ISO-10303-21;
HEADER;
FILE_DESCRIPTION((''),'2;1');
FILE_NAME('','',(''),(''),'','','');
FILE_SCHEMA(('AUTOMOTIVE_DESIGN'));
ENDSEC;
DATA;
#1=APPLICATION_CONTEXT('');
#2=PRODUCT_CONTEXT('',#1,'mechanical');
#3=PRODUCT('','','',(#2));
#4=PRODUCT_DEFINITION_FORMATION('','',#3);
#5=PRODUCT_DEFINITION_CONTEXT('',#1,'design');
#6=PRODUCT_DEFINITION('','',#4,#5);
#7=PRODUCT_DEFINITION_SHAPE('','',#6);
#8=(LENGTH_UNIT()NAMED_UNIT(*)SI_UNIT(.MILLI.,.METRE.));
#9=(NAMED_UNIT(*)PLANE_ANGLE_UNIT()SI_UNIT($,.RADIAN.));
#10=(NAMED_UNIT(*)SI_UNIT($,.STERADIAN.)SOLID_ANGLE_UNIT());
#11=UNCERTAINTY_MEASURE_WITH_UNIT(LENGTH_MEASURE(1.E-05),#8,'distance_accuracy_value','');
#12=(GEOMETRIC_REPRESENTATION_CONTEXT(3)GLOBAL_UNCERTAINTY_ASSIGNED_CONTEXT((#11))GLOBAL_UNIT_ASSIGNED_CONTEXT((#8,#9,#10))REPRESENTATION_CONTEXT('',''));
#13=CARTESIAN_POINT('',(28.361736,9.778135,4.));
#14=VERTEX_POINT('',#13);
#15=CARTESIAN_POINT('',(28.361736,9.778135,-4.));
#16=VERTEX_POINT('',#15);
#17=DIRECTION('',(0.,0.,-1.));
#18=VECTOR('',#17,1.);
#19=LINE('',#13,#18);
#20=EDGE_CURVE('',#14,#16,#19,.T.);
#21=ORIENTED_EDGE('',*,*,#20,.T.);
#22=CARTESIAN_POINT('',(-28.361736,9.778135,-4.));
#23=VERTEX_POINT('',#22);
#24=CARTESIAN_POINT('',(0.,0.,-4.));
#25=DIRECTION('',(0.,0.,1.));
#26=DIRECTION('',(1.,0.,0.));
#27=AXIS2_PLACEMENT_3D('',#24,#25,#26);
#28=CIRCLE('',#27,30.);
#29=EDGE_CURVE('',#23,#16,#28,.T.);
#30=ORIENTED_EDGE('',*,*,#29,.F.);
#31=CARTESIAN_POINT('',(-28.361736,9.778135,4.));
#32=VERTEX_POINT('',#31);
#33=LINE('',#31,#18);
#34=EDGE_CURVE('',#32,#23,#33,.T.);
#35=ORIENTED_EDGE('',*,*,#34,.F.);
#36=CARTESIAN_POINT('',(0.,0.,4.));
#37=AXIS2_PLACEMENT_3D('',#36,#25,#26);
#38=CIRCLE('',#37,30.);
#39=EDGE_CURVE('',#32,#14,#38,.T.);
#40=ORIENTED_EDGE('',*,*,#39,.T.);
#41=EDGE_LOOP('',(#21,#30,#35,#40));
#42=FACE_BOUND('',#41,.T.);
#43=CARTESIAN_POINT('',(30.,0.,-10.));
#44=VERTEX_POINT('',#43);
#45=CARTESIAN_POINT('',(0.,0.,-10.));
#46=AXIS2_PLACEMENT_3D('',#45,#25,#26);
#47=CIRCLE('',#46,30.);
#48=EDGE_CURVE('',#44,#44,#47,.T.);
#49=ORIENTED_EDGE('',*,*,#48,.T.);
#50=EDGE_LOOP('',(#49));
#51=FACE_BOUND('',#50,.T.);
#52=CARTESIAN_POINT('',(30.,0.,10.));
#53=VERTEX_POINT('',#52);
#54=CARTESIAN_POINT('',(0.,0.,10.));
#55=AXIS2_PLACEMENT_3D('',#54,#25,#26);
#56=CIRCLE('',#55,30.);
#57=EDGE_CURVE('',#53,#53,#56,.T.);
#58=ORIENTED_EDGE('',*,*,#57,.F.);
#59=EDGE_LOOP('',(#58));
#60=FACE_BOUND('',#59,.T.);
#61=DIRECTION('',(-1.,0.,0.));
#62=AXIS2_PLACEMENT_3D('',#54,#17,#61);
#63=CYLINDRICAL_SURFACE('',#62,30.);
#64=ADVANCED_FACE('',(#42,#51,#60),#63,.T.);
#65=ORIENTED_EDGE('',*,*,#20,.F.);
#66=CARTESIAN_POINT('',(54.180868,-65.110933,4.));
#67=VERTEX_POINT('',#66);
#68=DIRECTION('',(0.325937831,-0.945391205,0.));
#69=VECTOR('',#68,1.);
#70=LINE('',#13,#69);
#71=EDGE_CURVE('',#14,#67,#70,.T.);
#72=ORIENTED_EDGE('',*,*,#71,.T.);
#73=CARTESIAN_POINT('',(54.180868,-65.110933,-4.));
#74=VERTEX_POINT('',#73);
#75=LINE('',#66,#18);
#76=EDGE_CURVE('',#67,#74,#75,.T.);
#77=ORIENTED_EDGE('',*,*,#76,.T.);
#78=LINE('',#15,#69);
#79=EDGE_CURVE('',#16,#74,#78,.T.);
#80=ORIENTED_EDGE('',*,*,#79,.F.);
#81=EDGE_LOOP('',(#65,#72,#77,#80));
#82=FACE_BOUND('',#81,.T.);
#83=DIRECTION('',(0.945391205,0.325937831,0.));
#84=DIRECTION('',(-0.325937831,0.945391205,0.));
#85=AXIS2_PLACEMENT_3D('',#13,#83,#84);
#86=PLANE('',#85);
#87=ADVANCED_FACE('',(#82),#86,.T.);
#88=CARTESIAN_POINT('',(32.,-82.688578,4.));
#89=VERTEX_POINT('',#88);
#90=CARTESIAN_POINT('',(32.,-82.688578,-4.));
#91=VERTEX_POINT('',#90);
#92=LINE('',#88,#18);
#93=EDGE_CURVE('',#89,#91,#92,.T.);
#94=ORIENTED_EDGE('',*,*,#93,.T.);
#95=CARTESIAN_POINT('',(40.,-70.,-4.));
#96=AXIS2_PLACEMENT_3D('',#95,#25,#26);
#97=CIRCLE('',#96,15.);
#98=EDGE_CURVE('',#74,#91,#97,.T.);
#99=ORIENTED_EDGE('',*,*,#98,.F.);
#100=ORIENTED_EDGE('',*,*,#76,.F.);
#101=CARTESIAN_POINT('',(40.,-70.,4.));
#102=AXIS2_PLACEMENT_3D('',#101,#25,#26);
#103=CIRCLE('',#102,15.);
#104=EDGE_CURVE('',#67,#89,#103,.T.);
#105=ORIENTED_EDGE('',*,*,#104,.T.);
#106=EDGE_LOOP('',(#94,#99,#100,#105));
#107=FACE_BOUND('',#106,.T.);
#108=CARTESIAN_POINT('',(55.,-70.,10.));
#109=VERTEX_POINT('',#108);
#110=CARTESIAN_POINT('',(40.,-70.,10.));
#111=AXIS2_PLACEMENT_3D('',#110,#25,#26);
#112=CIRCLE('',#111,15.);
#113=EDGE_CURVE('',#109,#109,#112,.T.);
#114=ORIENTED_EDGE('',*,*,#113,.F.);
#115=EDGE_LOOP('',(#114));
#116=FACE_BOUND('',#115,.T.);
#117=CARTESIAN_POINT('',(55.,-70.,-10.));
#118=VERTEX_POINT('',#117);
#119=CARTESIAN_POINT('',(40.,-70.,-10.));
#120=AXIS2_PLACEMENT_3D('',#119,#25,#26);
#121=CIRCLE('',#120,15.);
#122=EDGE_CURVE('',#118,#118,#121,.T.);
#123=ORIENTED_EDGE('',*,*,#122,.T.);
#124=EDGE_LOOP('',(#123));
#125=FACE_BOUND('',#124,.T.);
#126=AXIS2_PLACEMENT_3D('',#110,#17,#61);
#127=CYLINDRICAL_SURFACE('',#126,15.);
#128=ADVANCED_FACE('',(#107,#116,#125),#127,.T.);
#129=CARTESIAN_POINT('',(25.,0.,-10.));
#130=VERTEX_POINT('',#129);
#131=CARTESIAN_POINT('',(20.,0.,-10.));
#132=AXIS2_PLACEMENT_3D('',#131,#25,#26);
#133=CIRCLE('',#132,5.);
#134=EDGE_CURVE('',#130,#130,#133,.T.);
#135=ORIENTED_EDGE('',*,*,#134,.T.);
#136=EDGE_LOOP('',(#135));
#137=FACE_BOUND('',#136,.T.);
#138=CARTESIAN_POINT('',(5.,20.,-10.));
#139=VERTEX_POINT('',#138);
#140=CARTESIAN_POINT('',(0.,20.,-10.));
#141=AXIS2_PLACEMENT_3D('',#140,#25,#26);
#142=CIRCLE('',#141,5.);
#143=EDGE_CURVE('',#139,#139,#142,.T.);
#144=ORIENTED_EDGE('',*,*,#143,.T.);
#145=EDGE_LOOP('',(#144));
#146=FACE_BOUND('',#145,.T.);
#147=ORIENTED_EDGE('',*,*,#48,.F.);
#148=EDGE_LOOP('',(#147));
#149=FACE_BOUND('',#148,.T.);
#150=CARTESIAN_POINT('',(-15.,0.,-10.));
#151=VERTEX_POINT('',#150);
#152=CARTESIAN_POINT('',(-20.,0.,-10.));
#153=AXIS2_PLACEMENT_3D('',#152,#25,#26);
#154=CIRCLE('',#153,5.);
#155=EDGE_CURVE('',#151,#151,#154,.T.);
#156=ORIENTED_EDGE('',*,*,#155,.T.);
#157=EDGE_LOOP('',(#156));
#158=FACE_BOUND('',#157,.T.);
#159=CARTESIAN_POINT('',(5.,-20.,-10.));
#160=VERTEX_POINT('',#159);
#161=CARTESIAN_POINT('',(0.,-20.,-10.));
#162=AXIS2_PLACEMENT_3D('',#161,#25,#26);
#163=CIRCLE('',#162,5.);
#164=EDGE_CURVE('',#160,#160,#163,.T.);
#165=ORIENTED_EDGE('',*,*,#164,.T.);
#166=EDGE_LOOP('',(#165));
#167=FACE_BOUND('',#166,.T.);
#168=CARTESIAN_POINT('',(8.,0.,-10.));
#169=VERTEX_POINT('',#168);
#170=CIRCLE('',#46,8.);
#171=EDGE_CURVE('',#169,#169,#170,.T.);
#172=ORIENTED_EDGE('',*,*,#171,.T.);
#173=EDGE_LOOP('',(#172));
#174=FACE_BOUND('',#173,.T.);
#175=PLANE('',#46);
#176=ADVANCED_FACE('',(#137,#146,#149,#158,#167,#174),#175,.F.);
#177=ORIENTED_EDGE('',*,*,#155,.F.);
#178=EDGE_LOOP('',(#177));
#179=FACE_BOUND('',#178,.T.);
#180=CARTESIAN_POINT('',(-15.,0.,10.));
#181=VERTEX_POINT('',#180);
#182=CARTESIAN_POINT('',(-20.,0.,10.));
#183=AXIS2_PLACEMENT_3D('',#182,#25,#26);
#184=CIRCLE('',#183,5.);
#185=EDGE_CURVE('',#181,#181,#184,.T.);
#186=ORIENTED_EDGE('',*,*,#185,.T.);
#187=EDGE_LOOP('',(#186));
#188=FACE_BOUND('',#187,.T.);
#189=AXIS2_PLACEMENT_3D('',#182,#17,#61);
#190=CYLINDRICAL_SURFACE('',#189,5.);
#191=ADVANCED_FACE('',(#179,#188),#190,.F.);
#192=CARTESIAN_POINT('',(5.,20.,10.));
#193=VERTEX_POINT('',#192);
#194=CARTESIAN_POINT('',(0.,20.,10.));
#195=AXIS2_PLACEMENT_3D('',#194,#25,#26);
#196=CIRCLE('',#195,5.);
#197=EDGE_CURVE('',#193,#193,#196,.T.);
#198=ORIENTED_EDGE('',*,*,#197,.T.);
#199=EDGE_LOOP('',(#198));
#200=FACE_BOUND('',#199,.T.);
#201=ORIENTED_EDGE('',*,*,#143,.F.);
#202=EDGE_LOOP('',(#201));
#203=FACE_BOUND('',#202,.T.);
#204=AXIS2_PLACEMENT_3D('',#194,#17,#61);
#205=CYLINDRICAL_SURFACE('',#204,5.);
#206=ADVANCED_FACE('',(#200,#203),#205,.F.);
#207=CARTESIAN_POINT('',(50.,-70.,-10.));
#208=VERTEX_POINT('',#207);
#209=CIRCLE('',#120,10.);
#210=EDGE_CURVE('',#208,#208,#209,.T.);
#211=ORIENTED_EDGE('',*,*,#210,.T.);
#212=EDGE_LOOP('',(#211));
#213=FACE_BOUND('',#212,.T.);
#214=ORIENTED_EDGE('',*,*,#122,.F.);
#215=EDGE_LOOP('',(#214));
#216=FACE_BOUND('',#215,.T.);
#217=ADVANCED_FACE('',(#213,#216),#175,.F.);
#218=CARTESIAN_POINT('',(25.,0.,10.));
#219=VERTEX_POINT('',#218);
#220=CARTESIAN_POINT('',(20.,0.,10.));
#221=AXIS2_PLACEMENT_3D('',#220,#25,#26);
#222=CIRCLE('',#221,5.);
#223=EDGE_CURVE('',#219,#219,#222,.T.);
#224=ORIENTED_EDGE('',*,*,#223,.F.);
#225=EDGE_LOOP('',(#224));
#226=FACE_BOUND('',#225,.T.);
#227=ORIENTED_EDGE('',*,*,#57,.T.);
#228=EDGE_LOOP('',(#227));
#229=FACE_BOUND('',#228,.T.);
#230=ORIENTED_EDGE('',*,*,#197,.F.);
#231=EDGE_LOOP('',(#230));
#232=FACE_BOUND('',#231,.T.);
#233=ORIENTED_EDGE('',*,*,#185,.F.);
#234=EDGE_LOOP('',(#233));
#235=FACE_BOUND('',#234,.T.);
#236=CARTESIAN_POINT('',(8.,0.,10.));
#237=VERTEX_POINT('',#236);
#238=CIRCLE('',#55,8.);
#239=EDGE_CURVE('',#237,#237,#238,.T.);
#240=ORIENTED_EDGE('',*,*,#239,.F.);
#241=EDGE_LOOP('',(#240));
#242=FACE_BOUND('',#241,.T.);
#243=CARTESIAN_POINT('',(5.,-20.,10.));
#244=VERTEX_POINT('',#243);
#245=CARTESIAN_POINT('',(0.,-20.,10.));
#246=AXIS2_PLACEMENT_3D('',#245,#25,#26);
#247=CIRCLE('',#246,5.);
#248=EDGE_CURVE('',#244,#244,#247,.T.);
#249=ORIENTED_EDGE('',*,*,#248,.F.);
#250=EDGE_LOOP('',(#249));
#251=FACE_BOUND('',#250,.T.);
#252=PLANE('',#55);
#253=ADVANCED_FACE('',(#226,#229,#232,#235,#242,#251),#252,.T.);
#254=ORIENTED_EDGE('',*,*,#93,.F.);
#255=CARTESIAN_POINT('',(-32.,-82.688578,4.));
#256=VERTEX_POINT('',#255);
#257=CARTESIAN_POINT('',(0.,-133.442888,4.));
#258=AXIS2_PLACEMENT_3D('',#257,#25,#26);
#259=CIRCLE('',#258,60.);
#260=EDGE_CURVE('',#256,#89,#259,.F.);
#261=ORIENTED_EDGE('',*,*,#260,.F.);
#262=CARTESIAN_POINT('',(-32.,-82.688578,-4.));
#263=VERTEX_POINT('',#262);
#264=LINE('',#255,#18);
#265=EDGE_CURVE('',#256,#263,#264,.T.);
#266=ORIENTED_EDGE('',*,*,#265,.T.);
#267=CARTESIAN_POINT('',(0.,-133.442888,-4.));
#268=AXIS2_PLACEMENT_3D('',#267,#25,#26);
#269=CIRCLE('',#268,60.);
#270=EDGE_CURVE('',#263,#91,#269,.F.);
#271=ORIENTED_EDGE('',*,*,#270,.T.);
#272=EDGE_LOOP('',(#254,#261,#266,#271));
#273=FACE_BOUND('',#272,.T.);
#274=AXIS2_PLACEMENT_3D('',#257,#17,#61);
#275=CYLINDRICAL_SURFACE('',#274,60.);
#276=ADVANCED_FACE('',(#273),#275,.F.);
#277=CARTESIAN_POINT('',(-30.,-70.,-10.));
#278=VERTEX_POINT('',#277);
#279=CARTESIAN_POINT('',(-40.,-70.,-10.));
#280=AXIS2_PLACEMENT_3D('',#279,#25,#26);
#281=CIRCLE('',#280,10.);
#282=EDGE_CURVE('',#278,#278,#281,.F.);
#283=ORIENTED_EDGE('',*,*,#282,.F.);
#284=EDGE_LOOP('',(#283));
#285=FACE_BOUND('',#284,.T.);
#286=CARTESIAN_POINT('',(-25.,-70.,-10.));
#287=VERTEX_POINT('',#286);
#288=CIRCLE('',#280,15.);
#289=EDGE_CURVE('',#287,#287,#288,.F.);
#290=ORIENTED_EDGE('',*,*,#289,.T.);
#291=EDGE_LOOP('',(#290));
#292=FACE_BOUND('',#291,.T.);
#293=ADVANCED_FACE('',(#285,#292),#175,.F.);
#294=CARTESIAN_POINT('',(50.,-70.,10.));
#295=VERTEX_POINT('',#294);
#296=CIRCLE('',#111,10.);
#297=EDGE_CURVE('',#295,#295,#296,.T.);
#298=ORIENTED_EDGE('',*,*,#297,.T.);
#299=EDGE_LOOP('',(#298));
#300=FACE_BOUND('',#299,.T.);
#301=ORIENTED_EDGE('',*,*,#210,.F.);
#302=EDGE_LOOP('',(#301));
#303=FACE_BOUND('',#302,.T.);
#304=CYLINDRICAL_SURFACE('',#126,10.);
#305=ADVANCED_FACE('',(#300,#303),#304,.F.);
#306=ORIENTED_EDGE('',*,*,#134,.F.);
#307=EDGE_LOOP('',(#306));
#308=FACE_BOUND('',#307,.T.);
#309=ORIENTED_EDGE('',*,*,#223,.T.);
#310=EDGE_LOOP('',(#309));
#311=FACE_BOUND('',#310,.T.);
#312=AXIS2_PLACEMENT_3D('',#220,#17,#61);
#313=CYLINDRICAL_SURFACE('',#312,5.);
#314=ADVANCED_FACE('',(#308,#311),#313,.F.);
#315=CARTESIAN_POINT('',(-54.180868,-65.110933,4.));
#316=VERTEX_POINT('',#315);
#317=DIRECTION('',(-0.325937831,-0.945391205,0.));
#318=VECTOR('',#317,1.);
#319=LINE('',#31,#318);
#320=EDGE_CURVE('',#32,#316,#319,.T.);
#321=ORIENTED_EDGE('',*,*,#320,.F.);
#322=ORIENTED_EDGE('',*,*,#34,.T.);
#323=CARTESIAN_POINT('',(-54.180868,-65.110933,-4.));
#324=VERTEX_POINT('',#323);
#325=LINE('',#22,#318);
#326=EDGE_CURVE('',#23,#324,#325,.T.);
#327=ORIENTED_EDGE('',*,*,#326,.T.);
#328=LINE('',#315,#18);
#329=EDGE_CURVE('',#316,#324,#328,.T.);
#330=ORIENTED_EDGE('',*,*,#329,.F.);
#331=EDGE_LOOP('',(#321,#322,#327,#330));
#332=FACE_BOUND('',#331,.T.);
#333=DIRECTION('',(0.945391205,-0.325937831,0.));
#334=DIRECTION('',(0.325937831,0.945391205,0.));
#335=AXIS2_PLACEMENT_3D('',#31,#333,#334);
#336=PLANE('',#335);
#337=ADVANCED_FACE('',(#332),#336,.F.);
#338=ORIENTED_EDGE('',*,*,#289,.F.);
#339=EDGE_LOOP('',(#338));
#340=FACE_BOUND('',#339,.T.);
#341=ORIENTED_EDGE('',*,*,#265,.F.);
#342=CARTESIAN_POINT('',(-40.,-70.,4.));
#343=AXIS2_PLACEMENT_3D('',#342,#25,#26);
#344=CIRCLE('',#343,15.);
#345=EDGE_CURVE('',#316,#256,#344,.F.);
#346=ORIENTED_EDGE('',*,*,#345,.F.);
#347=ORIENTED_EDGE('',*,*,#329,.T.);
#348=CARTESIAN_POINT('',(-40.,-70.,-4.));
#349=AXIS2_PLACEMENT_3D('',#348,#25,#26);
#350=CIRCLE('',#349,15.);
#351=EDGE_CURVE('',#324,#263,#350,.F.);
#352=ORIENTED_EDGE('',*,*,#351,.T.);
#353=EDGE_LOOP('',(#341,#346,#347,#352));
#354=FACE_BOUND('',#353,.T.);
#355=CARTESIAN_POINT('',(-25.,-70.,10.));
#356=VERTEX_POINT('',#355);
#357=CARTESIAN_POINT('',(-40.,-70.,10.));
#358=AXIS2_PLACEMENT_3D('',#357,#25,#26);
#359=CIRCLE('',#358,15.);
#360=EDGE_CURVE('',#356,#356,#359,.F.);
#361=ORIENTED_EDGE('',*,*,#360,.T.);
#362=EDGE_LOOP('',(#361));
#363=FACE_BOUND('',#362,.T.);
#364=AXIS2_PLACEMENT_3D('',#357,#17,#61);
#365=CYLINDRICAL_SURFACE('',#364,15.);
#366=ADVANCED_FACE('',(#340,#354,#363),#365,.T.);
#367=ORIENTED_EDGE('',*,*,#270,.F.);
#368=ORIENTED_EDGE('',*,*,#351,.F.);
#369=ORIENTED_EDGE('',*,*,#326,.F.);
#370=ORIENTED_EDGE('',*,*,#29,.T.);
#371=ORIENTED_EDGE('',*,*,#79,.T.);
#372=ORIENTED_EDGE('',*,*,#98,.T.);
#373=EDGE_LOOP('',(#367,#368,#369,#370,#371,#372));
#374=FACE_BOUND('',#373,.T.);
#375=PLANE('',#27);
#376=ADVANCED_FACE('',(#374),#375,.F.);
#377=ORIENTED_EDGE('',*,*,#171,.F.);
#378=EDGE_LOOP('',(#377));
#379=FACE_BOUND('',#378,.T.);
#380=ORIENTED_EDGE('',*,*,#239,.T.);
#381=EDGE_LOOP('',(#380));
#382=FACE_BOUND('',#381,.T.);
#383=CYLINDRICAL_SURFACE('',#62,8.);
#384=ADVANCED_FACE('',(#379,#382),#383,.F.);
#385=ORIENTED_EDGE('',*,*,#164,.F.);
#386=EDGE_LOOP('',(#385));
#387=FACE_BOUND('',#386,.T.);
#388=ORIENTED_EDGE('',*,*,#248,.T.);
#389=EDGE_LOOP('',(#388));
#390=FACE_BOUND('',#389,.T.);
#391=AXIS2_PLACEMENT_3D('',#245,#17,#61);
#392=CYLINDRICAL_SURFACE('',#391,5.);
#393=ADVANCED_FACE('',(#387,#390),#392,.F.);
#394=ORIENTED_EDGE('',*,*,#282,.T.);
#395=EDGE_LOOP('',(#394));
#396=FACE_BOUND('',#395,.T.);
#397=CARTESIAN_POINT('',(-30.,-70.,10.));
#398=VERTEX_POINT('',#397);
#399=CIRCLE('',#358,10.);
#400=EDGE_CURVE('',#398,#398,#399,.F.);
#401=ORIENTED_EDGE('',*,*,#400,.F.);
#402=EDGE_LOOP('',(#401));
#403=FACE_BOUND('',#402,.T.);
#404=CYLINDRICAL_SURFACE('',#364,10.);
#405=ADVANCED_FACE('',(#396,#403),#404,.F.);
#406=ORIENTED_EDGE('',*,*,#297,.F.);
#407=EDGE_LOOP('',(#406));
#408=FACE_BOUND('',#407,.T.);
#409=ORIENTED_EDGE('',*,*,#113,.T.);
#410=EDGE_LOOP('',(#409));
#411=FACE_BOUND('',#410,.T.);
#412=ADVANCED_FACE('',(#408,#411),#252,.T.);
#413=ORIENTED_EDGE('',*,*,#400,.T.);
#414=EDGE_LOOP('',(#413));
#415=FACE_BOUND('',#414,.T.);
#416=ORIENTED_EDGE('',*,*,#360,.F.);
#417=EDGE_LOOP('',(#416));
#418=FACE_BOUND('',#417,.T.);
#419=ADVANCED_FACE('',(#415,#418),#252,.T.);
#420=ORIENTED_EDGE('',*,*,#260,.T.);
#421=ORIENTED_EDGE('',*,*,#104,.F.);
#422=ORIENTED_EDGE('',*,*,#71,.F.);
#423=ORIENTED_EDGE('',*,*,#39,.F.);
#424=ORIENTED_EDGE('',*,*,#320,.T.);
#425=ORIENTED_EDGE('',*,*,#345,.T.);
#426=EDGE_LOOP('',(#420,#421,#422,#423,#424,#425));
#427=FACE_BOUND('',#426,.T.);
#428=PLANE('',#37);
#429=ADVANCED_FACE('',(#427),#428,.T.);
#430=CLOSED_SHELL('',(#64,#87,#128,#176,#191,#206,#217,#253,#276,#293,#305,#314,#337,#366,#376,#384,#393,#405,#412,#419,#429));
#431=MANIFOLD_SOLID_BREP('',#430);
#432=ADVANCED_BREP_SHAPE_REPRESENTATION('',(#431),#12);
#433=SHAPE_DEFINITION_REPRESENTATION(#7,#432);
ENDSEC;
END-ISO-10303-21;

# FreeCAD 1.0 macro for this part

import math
import FreeCAD as App
import Part
import Sketcher

doc = App.newDocument("Part")
params = doc.addObject("Spreadsheet::Sheet", "Params")
for row, (alias, value) in enumerate([
    ("sketch1_diameter", "60 mm"),
    ("sketch1_diameter2", "10 mm"),
    ("sketch1_diameter3", "16 mm"),
    ("pad1_length", "20 mm"),
    ("sketch2_diameter", "30 mm"),
    ("sketch2_diameter2", "20 mm"),
    ("pad2_length", "20 mm"),
    ("sketch3_diameter", "30 mm"),
    ("sketch3_diameter2", "20 mm"),
    ("pad3_length", "20 mm"),
    ("sketch4_radius", "30 mm"),
    ("sketch4_radius2", "15 mm"),
    ("sketch4_radius3", "60 mm"),
    ("pad4_length", "8 mm"),
], start=1):
    params.set(f"A{row}", alias)
    params.set(f"B{row}", "=" + value)
    params.setAlias(f"B{row}", alias)

body = doc.addObject("PartDesign::Body", "Body")

sketch1 = body.newObject("Sketcher::SketchObject", "Sketch")
sketch1.AttachmentSupport = (doc.getObject("XY_Plane"), [""])
sketch1.MapMode = "FlatFace"
sketch1.addGeometry([
    Part.Circle(App.Vector(0, 0, 0), App.Vector(0, 0, 1), 30),
    Part.Circle(App.Vector(0, -20, 0), App.Vector(0, 0, 1), 5),
    Part.Circle(App.Vector(-20, 0, 0), App.Vector(0, 0, 1), 5),
    Part.Circle(App.Vector(0, 0, 0), App.Vector(0, 0, 1), 8),
    Part.Circle(App.Vector(20, 0, 0), App.Vector(0, 0, 1), 5),
    Part.Circle(App.Vector(0, 20, 0), App.Vector(0, 0, 1), 5),
], False)
sketch1.addConstraint([
    Sketcher.Constraint("Coincident", 0, 3, -1, 1),
    Sketcher.Constraint("Coincident", 3, 3, -1, 1),
    Sketcher.Constraint("Equal", 1, 2),
    Sketcher.Constraint("Equal", 2, 4),
    Sketcher.Constraint("Equal", 4, 5),
    Sketcher.Constraint("Symmetric", 2, 3, 4, 3, -1, 1),
    Sketcher.Constraint("Symmetric", 1, 3, 5, 3, -1, 1),
    Sketcher.Constraint("PointOnObject", 1, 3, -2),
    Sketcher.Constraint("PointOnObject", 2, 3, -1),
    Sketcher.Constraint("Diameter", 0, 60.0),
    Sketcher.Constraint("Diameter", 1, 10.0),
    Sketcher.Constraint("Diameter", 3, 16.0),
    Sketcher.Constraint("DistanceY", 1, 3, -1, 1, 20.0),
    Sketcher.Constraint("DistanceX", 2, 3, -1, 1, 20.0),
])
sketch1.setExpression("Constraints[9]", "Params.sketch1_diameter")
sketch1.setExpression("Constraints[10]", "Params.sketch1_diameter2")
sketch1.setExpression("Constraints[11]", "Params.sketch1_diameter3")
pad1 = body.newObject("PartDesign::Pad", "Pad")
pad1.Profile = sketch1
pad1.setExpression("Length", "Params.pad1_length")
pad1.Midplane = True
body2 = doc.addObject("PartDesign::Body", "Body001")

sketch2 = body2.newObject("Sketcher::SketchObject", "Sketch001")
sketch2.AttachmentSupport = (doc.getObject("XY_Plane001"), [""])
sketch2.MapMode = "FlatFace"
sketch2.addGeometry([
    Part.Circle(App.Vector(40, -70, 0), App.Vector(0, 0, 1), 15),
    Part.Circle(App.Vector(40, -70, 0), App.Vector(0, 0, 1), 10),
], False)
sketch2.addConstraint([
    Sketcher.Constraint("Coincident", 1, 3, 0, 3),
    Sketcher.Constraint("Diameter", 0, 30.0),
    Sketcher.Constraint("Diameter", 1, 20.0),
    Sketcher.Constraint("DistanceX", -1, 1, 0, 3, 40.0),
    Sketcher.Constraint("DistanceY", 0, 3, -1, 1, 70.0),
])
sketch2.setExpression("Constraints[1]", "Params.sketch2_diameter")
sketch2.setExpression("Constraints[2]", "Params.sketch2_diameter2")
pad2 = body2.newObject("PartDesign::Pad", "Pad001")
pad2.Profile = sketch2
pad2.setExpression("Length", "Params.pad2_length")
pad2.Midplane = True
body3 = doc.addObject("PartDesign::Body", "Body002")

sketch3 = body3.newObject("Sketcher::SketchObject", "Sketch002")
sketch3.AttachmentSupport = (doc.getObject("XY_Plane002"), [""])
sketch3.MapMode = "FlatFace"
sketch3.addGeometry([
    Part.Circle(App.Vector(-40, -70, 0), App.Vector(0, 0, 1), 15),
    Part.Circle(App.Vector(-40, -70, 0), App.Vector(0, 0, 1), 10),
], False)
sketch3.addConstraint([
    Sketcher.Constraint("Coincident", 1, 3, 0, 3),
    Sketcher.Constraint("Diameter", 0, 30.0),
    Sketcher.Constraint("Diameter", 1, 20.0),
    Sketcher.Constraint("DistanceX", 0, 3, -1, 1, 40.0),
    Sketcher.Constraint("DistanceY", 0, 3, -1, 1, 70.0),
])
sketch3.setExpression("Constraints[1]", "Params.sketch3_diameter")
sketch3.setExpression("Constraints[2]", "Params.sketch3_diameter2")
pad3 = body3.newObject("PartDesign::Pad", "Pad002")
pad3.Profile = sketch3
pad3.setExpression("Length", "Params.pad3_length")
pad3.Midplane = True
body.AllowCompound = True
doc.recompute()

boolean = body.newObject("PartDesign::Boolean", "Boolean")
boolean.Type = "Fuse"
boolean.addObjects([body2])
doc.recompute()

boolean2 = body.newObject("PartDesign::Boolean", "Boolean001")
boolean2.Type = "Fuse"
boolean2.addObjects([body3])

sketch4 = body.newObject("Sketcher::SketchObject", "Sketch003")
sketch4.AttachmentSupport = (doc.getObject("XY_Plane"), [""])
sketch4.MapMode = "FlatFace"
sketch4.addGeometry([
    Part.LineSegment(App.Vector(54, -65, 0), App.Vector(28, 10, 0)),
    Part.ArcOfCircle(Part.Circle(App.Vector(0, 0, 0), App.Vector(0, 0, 1), 30), math.radians(0), math.radians(19.02)),
    Part.ArcOfCircle(Part.Circle(App.Vector(0, 0, 0), App.Vector(0, 0, 1), 30), math.radians(161), math.radians(360)),
    Part.LineSegment(App.Vector(-28, 10, 0), App.Vector(-54, -65, 0)),
    Part.ArcOfCircle(Part.Circle(App.Vector(-40, -70, 0), App.Vector(0, 0, 1), 15), math.radians(0), math.radians(161)),
    Part.ArcOfCircle(Part.Circle(App.Vector(-40, -70, 0), App.Vector(0, 0, 1), 15), math.radians(-58), math.radians(0)),
    Part.ArcOfCircle(Part.Circle(App.Vector(0, -133, 0), App.Vector(0, 0, 1), 60), math.radians(58), math.radians(122)),
    Part.ArcOfCircle(Part.Circle(App.Vector(40, -70, 0), App.Vector(0, 0, 1), 15), math.radians(19), math.radians(238)),
], False)
sketch4.addConstraint([
    Sketcher.Constraint("Tangent", 0, 2, 1, 2),
    Sketcher.Constraint("Tangent", 1, 1, 2, 2),
    Sketcher.Constraint("Tangent", 2, 1, 3, 1),
    Sketcher.Constraint("Tangent", 3, 2, 4, 2),
    Sketcher.Constraint("Tangent", 4, 1, 5, 2),
    Sketcher.Constraint("Tangent", 5, 1, 6, 2),
    Sketcher.Constraint("Tangent", 6, 1, 7, 2),
    Sketcher.Constraint("Tangent", 7, 1, 0, 1),
    Sketcher.Constraint("Coincident", 1, 3, -1, 1),
    Sketcher.Constraint("Equal", 1, 2),
    Sketcher.Constraint("Equal", 4, 5),
    Sketcher.Constraint("Equal", 5, 7),
    Sketcher.Constraint("Symmetric", 4, 3, 7, 3, -2),
    Sketcher.Constraint("PointOnObject", 1, 1, -1),
    Sketcher.Constraint("Horizontal", 7, 3, 4, 1),
    Sketcher.Constraint("Radius", 1, 30.0),
    Sketcher.Constraint("Radius", 4, 15.0),
    Sketcher.Constraint("Radius", 6, 60.0),
    Sketcher.Constraint("DistanceX", 4, 3, -1, 1, 40.0),
    Sketcher.Constraint("DistanceY", 4, 3, -1, 1, 70.0),
])
sketch4.setExpression("Constraints[15]", "Params.sketch4_radius")
sketch4.setExpression("Constraints[16]", "Params.sketch4_radius2")
sketch4.setExpression("Constraints[17]", "Params.sketch4_radius3")
pad4 = body.newObject("PartDesign::Pad", "Pad003")
pad4.Profile = sketch4
pad4.setExpression("Length", "Params.pad4_length")
pad4.Midplane = True

doc.recompute()
